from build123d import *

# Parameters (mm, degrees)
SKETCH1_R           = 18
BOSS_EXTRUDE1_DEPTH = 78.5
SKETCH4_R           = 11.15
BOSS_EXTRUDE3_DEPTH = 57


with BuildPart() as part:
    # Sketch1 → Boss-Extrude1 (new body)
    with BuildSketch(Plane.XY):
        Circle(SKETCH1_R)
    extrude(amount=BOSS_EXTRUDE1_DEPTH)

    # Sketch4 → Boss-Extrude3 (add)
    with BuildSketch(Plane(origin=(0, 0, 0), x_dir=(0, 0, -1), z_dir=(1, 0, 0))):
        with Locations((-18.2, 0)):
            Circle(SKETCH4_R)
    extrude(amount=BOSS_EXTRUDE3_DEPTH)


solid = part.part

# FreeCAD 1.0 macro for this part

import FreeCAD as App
import Part
import Sketcher

doc = App.newDocument("Part")
body = doc.addObject("PartDesign::Body", "Body")

# Sketch on XY plane
sketch1 = body.newObject("Sketcher::SketchObject", "Sketch")
sketch1.AttachmentSupport = (doc.getObject("XY_Plane"), [""])
sketch1.MapMode = "FlatFace"
sketch1.addGeometry(Part.Circle(App.Vector(0, 0, 0), App.Vector(0, 0, 1), 18), False)
sketch1.addConstraint([
    Sketcher.Constraint("Coincident", 0, 3, -1, 1),
    Sketcher.Constraint("Diameter", 0, 36.0),
])
pad1 = body.newObject("PartDesign::Pad", "Pad")
pad1.Profile = sketch1
pad1.Length = 78.5

# Sketch on YZ plane
sketch2 = body.newObject("Sketcher::SketchObject", "Sketch001")
sketch2.AttachmentSupport = (doc.getObject("YZ_Plane"), [""])
sketch2.MapMode = "FlatFace"
sketch2.addGeometry(Part.Circle(App.Vector(0, 18, 0), App.Vector(0, 0, 1), 11), False)
sketch2.addConstraint([
    Sketcher.Constraint("PointOnObject", 0, 3, -2),
    Sketcher.Constraint("Diameter", 0, 22.3),
    Sketcher.Constraint("DistanceY", -1, 1, 0, 3, 18.2),
])
pad2 = body.newObject("PartDesign::Pad", "Pad001")
pad2.Profile = sketch2
pad2.Length = 57

doc.recompute()
